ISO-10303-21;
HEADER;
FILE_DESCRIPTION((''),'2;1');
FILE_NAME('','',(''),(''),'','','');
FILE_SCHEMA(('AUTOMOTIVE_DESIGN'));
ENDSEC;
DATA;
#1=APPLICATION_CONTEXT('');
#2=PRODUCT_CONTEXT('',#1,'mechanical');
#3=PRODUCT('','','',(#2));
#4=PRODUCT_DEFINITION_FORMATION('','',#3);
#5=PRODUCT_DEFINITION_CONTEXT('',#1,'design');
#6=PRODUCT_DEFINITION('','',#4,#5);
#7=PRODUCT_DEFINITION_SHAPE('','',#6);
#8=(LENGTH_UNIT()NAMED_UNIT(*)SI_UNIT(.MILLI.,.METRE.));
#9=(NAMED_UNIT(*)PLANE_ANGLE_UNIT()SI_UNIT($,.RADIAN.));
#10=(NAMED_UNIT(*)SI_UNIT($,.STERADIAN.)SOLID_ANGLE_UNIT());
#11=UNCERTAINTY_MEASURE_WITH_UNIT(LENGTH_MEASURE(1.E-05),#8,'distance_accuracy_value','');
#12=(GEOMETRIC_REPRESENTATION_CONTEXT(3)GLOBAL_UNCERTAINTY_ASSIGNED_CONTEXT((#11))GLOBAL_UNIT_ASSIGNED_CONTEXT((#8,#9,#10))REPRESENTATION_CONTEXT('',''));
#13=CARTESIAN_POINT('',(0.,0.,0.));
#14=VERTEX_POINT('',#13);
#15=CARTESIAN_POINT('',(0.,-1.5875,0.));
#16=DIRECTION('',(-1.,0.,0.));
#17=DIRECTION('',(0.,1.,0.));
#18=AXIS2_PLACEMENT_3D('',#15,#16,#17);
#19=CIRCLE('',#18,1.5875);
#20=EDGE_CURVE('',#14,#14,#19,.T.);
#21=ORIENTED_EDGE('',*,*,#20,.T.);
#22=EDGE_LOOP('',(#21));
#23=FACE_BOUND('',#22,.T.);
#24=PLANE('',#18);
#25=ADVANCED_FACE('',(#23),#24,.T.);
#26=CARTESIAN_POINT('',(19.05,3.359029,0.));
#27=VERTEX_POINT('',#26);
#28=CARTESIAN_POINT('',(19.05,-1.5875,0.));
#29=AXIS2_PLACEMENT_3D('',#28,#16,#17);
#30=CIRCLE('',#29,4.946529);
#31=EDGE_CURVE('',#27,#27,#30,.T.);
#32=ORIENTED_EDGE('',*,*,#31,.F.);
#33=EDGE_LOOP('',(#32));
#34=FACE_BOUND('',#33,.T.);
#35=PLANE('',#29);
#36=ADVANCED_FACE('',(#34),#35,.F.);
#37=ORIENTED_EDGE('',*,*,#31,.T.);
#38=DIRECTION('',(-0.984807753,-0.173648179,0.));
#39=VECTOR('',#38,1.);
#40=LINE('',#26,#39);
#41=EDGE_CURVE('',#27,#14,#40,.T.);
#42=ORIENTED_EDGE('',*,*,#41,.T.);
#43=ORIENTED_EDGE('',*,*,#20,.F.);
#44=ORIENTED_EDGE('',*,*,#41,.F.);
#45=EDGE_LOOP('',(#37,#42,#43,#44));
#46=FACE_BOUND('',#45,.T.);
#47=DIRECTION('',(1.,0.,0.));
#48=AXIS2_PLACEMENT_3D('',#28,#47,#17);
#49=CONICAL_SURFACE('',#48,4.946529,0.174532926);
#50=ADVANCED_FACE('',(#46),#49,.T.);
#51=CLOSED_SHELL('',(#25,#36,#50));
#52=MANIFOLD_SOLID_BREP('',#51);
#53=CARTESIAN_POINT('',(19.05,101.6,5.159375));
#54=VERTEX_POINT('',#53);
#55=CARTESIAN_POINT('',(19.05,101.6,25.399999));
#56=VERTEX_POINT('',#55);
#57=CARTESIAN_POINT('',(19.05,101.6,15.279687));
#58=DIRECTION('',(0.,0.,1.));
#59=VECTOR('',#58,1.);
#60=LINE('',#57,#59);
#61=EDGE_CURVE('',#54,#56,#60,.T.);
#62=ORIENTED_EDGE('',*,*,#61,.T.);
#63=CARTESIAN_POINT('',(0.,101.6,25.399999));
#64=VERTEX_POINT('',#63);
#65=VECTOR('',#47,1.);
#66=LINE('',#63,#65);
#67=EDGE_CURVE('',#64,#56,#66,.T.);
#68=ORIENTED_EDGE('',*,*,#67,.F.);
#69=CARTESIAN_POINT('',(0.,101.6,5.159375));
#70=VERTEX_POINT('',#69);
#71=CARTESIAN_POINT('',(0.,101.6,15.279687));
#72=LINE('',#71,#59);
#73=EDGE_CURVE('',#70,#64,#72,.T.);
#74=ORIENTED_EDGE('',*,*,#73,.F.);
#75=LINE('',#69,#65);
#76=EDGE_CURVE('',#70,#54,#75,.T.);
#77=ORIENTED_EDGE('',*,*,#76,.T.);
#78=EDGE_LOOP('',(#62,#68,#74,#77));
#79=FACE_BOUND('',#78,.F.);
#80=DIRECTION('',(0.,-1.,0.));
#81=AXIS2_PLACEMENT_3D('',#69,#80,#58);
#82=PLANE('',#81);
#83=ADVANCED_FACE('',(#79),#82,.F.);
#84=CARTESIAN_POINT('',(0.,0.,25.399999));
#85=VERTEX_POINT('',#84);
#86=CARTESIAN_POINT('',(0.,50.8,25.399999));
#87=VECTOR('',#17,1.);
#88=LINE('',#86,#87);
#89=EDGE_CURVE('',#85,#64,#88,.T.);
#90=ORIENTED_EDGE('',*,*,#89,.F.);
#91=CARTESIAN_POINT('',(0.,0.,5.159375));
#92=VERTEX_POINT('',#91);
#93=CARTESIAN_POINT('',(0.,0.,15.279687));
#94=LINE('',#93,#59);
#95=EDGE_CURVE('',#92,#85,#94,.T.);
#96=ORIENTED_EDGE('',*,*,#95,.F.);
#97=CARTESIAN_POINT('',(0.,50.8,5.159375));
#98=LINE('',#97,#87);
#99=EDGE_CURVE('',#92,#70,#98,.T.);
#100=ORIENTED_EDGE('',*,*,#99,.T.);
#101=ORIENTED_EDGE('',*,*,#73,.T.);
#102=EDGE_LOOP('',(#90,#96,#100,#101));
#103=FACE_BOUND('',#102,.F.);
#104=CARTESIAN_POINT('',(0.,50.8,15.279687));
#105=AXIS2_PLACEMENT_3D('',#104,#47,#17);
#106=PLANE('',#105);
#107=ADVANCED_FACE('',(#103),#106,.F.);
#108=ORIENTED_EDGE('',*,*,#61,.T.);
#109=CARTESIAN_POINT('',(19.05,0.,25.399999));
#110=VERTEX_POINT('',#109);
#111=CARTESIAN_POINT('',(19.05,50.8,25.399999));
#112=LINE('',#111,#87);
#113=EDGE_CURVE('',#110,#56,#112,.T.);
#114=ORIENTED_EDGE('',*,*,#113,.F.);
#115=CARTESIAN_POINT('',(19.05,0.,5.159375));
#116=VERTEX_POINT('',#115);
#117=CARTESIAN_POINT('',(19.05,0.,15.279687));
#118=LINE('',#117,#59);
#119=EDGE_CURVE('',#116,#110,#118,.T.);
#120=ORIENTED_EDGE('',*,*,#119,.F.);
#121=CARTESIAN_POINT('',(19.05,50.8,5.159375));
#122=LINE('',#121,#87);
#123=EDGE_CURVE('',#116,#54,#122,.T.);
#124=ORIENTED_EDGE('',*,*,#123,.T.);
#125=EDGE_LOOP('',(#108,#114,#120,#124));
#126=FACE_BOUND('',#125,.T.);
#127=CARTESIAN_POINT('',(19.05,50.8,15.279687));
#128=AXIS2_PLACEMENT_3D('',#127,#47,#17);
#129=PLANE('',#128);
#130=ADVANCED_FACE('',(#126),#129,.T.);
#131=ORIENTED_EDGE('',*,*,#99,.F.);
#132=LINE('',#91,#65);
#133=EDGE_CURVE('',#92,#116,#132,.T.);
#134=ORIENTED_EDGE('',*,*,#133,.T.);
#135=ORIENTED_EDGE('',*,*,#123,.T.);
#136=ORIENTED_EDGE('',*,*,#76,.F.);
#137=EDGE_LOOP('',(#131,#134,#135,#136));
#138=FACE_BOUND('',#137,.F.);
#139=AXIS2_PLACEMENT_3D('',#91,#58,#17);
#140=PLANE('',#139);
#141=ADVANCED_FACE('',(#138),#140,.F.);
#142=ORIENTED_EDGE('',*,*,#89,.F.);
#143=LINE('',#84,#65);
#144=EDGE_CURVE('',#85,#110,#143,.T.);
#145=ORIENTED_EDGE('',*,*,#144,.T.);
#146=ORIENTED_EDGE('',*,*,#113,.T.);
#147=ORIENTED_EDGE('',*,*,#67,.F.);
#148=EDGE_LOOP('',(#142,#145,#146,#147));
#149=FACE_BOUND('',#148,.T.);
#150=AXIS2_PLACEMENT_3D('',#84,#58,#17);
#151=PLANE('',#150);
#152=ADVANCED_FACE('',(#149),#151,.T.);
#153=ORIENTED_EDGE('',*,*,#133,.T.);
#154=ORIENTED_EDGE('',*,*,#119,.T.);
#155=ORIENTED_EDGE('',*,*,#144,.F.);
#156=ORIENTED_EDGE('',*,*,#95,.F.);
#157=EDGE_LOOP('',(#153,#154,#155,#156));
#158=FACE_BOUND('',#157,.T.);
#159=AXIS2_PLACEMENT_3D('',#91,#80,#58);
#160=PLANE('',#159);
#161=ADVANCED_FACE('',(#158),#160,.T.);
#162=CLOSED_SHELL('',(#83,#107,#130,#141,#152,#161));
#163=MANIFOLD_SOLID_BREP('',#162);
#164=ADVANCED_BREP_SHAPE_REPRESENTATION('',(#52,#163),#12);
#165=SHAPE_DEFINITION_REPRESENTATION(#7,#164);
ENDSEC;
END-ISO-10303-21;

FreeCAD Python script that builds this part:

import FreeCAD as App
import Part
import Sketcher

V = App.Vector
Q = App.Units.Quantity

doc = App.newDocument("Part")
body = doc.addObject("PartDesign::Body", "Body")

sketch1 = body.newObject("Sketcher::SketchObject", "Sketch")
sketch1.AttachmentSupport = (doc.getObject("YZ_Plane"), [""])
sketch1.MapMode = "FlatFace"
sketch1.addGeometry(Part.LineSegment(V(0, 25, 0), V(0, 5, 0)), False)
sketch1.addGeometry(Part.LineSegment(V(0, 5, 0), V(102, 5, 0)), False)
sketch1.addGeometry(Part.LineSegment(V(102, 5, 0), V(102, 25, 0)), False)
sketch1.addGeometry(Part.LineSegment(V(102, 25, 0), V(0, 25, 0)), False)
sketch1.addConstraint(Sketcher.Constraint("Coincident", 0, 2, 1, 1))
sketch1.addConstraint(Sketcher.Constraint("Coincident", 1, 2, 2, 1))
sketch1.addConstraint(Sketcher.Constraint("Coincident", 2, 2, 3, 1))
sketch1.addConstraint(Sketcher.Constraint("Coincident", 3, 2, 0, 1))
sketch1.addConstraint(Sketcher.Constraint("Vertical", 0))
sketch1.addConstraint(Sketcher.Constraint("Horizontal", 1))
sketch1.addConstraint(Sketcher.Constraint("Vertical", 2))
sketch1.addConstraint(Sketcher.Constraint("Horizontal", 3))
sketch1.addConstraint(Sketcher.Constraint("PointOnObject", 0, 2, -2))
sketch1.addConstraint(Sketcher.Constraint("DistanceX", 1, 1, 1, 2, Q("4 in")))
sketch1.addConstraint(Sketcher.Constraint("DistanceY", -1, 1, 2, 2, Q("1 in")))
sketch1.addConstraint(Sketcher.Constraint("DistanceY", 0, 2, 0, 1, Q("0.796875 in")))
pad1 = body.newObject("PartDesign::Pad", "Pad")
pad1.Profile = sketch1
pad1.Length = Q("0.75 in")
body2 = doc.addObject("PartDesign::Body", "Body001")

sketch2 = body2.newObject("Sketcher::SketchObject", "Sketch001")
sketch2.AttachmentSupport = (doc.getObject("XY_Plane001"), [""])
sketch2.MapMode = "FlatFace"
sketch2.addGeometry(Part.LineSegment(V(19.1, 3.4, 0), V(0, 0, 0)), False)
sketch2.addGeometry(Part.LineSegment(V(0, 0, 0), V(0, -1.6, 0)), False)
sketch2.addGeometry(Part.LineSegment(V(0, -1.6, 0), V(19.1, -1.6, 0)), False)
sketch2.addGeometry(Part.LineSegment(V(19.1, -1.6, 0), V(19.1, 3.4, 0)), False)
sketch2.addGeometry(Part.LineSegment(V(19.1, -1.6, 0), V(0, -1.6, 0)), True)
sketch2.addConstraint(Sketcher.Constraint("Coincident", 0, 2, 1, 1))
sketch2.addConstraint(Sketcher.Constraint("Coincident", 1, 2, 2, 1))
sketch2.addConstraint(Sketcher.Constraint("Coincident", 2, 2, 3, 1))
sketch2.addConstraint(Sketcher.Constraint("Coincident", 3, 2, 0, 1))
sketch2.addConstraint(Sketcher.Constraint("Vertical", 1))
sketch2.addConstraint(Sketcher.Constraint("Horizontal", 2))
sketch2.addConstraint(Sketcher.Constraint("Vertical", 3))
sketch2.addConstraint(Sketcher.Constraint("Horizontal", 4))
sketch2.addConstraint(Sketcher.Constraint("Coincident", 0, 2, -1, 1))
sketch2.addConstraint(Sketcher.Constraint("Coincident", 4, 1, 2, 2))
sketch2.addConstraint(Sketcher.Constraint("PointOnObject", 4, 2, -2))
sketch2.addConstraint(Sketcher.Constraint("Angle", 0, Q("-170 deg")))
sketch2.addConstraint(Sketcher.Constraint("DistanceX", 2, 1, 2, 2, Q("0.75 in")))
sketch2.addConstraint(Sketcher.Constraint("DistanceY", 1, 2, 1, 1, Q("0.0625 in")))
revolution = body2.newObject("PartDesign::Revolution", "Revolution")
revolution.Profile = sketch2
revolution.ReferenceAxis = (sketch2, ["Axis0"])
revolution.Angle = 360

doc.recompute()
